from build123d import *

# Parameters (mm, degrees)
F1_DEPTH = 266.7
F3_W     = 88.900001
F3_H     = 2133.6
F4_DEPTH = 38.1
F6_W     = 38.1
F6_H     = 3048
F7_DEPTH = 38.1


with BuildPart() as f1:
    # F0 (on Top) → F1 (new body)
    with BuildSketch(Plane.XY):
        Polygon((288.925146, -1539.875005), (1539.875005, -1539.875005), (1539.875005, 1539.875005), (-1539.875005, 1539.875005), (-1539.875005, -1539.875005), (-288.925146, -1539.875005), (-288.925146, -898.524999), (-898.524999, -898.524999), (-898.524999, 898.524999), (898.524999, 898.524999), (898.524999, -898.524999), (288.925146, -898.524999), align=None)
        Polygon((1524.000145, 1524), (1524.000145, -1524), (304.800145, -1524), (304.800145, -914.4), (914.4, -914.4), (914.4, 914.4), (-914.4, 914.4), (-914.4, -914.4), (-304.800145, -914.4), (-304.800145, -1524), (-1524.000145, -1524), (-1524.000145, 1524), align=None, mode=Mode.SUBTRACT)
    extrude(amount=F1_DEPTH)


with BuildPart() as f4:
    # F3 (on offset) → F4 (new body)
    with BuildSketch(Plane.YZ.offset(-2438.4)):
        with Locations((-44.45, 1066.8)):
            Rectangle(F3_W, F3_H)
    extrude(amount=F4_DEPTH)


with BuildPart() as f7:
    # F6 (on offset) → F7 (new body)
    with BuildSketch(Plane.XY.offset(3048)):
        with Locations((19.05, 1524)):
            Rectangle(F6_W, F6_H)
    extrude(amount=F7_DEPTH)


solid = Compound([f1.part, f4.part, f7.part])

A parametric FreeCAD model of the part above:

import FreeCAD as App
import Part
import Sketcher

V = App.Vector
Q = App.Units.Quantity


def add_polygon(sketch, points):
    """Adds a closed chain of lines whose ends are joined by coincident constraints."""
    first, n = sketch.GeometryCount, len(points)
    for a, b in zip(points, points[1:] + points[:1]):
        sketch.addGeometry(Part.LineSegment(App.Vector(*a, 0), App.Vector(*b, 0)), False)
    for i in range(n):
        sketch.addConstraint(Sketcher.Constraint("Coincident", first + i, 2, first + (i + 1) % n, 1))

doc = App.newDocument("Part")
params = doc.addObject("Spreadsheet::Sheet", "Params")
for row, (alias, value) in enumerate([
    ("sketch1_width", "48 in"),
    ("sketch1_width2", "72 in"),
    ("sketch1_height", "120 in"),
    ("sketch1_width3", "70.7499999 in"),
    ("pad1_length", "10.5 in"),
    ("sketch2_height", "84 in"),
    ("sketch2_width", "3.5 in"),
    ("pad2_length", "1.5 in"),
    ("sketch3_height", "120 in"),
    ("sketch3_width", "1.5 in"),
    ("pad3_length", "1.5 in"),
], start=1):
    params.set(f"A{row}", alias)
    params.set(f"B{row}", "=" + value)
    params.setAlias(f"B{row}", alias)

body = doc.addObject("PartDesign::Body", "Body")

# Sketch on XY plane
sketch1 = doc.addObject("Sketcher::SketchObject", "Sketch")
body.addObject(sketch1)
sketch1.AttachmentSupport = (doc.XY_Plane, [""])
sketch1.MapMode = "FlatFace"
add_polygon(sketch1, [(289, -1540), (1540, -1540), (1540, 1540), (-1540, 1540), (-1540, -1540), (-289, -1540), (-289, -899), (-899, -899), (-899, 899), (899, 899), (899, -899), (289, -899)])  # lines 0-11
add_polygon(sketch1, [(-1524, 1524), (1524, 1524), (1524, -1524), (305, -1524), (305, -914), (914, -914), (914, 914), (-914, 914), (-914, -914), (-305, -914), (-305, -1524), (-1524, -1524)])  # lines 12-23
sketch1.addConstraint([
    Sketcher.Constraint("Horizontal", 0),
    Sketcher.Constraint("Vertical", 1),
    Sketcher.Constraint("Horizontal", 2),
    Sketcher.Constraint("Vertical", 3),
    Sketcher.Constraint("Horizontal", 4),
    Sketcher.Constraint("Vertical", 5),
    Sketcher.Constraint("Horizontal", 6),
    Sketcher.Constraint("Vertical", 7),
    Sketcher.Constraint("Horizontal", 8),
    Sketcher.Constraint("Vertical", 9),
    Sketcher.Constraint("Horizontal", 10),
    Sketcher.Constraint("Vertical", 11),
    Sketcher.Constraint("Horizontal", 12),
    Sketcher.Constraint("Vertical", 13),
    Sketcher.Constraint("Horizontal", 14),
    Sketcher.Constraint("Vertical", 15),
    Sketcher.Constraint("Horizontal", 16),
    Sketcher.Constraint("Vertical", 17),
    Sketcher.Constraint("Horizontal", 18),
    Sketcher.Constraint("Vertical", 19),
    Sketcher.Constraint("Horizontal", 20),
    Sketcher.Constraint("Vertical", 21),
    Sketcher.Constraint("Horizontal", 22),
    Sketcher.Constraint("Vertical", 23),
    Sketcher.Constraint("Symmetric", 0, 2, 2, 2, -1, 1),
    Sketcher.Constraint("Symmetric", 6, 2, 8, 2, -1, 1),
    Sketcher.Constraint("Symmetric", 16, 2, 18, 2, -1, 1),
    Sketcher.Constraint("Symmetric", 12, 2, 22, 2, -1, 1),
    Sketcher.Constraint("Symmetric", 5, 2, 10, 2, -2),
    Sketcher.Constraint("Symmetric", 15, 2, 20, 2, -2),
    Sketcher.Constraint("Horizontal", 0, 2, 3, 2),
    Sketcher.Constraint("Horizontal", 14, 2, 21, 2),
    Sketcher.Constraint("Equal", 10, 16),
    Sketcher.Constraint("Equal", 2, 1),
    Sketcher.Constraint("Equal", 8, 7),
    Sketcher.Constraint("Equal", 18, 17),
    Sketcher.Constraint("DistanceX", 14, 2, 14, 1, Q("48 in")),
    Sketcher.Constraint("DistanceX", 18, 2, 18, 1, Q("72 in")),
    Sketcher.Constraint("DistanceY", 13, 2, 13, 1, Q("120 in")),
    Sketcher.Constraint("DistanceY", 5, 2, 2, 2, Q("96.0000002 in")),
    Sketcher.Constraint("DistanceX", 8, 1, 8, 2, Q("70.7499999 in")),
    Sketcher.Constraint("DistanceX", 0, 1, 0, 2, 1250.949859),
])
sketch1.setExpression("Constraints[60]", "Params.sketch1_width")
sketch1.setExpression("Constraints[61]", "Params.sketch1_width2")
sketch1.setExpression("Constraints[62]", "Params.sketch1_height")
sketch1.setExpression("Constraints[64]", "Params.sketch1_width3")
pad1 = doc.addObject("PartDesign::Pad", "Pad")
body.addObject(pad1)
pad1.Profile = sketch1
pad1.setExpression("Length", "Params.pad1_length")
body2 = doc.addObject("PartDesign::Body", "Body001")

# Sketch on YZ plane
sketch2 = doc.addObject("Sketcher::SketchObject", "Sketch001")
body2.addObject(sketch2)
sketch2.AttachmentSupport = (doc.getObject("YZ_Plane001"), [""])
sketch2.MapMode = "FlatFace"
sketch2.AttachmentOffset = App.Placement(V(0, 0, -96 * 25.4), App.Rotation())
add_polygon(sketch2, [(-89, 2134), (-89, 0), (0, 0), (0, 2134)])  # lines 0-3
sketch2.addConstraint([
    Sketcher.Constraint("Vertical", 0),
    Sketcher.Constraint("Horizontal", 1),
    Sketcher.Constraint("Vertical", 2),
    Sketcher.Constraint("Horizontal", 3),
    Sketcher.Constraint("Coincident", 1, 2, -1, 1),
    Sketcher.Constraint("DistanceY", 0, 2, 0, 1, Q("84 in")),
    Sketcher.Constraint("DistanceX", 1, 1, 1, 2, Q("3.5 in")),
])
sketch2.setExpression("Constraints[9]", "Params.sketch2_height")
sketch2.setExpression("Constraints[10]", "Params.sketch2_width")
pad2 = doc.addObject("PartDesign::Pad", "Pad001")
body2.addObject(pad2)
pad2.Profile = sketch2
pad2.setExpression("Length", "Params.pad2_length")
body3 = doc.addObject("PartDesign::Body", "Body002")

# Sketch on XY plane
sketch3 = doc.addObject("Sketcher::SketchObject", "Sketch002")
body3.addObject(sketch3)
sketch3.AttachmentSupport = (doc.getObject("XY_Plane002"), [""])
sketch3.MapMode = "FlatFace"
sketch3.AttachmentOffset = App.Placement(V(0, 0, 120 * 25.4), App.Rotation())
add_polygon(sketch3, [(0, 3048), (0, 0), (38, 0), (38, 3048)])  # lines 0-3
sketch3.addConstraint([
    Sketcher.Constraint("Vertical", 0),
    Sketcher.Constraint("Horizontal", 1),
    Sketcher.Constraint("Vertical", 2),
    Sketcher.Constraint("Horizontal", 3),
    Sketcher.Constraint("Coincident", 0, 2, -1, 1),
    Sketcher.Constraint("DistanceY", 0, 2, 0, 1, Q("120 in")),
    Sketcher.Constraint("DistanceX", 1, 1, 1, 2, Q("1.5 in")),
])
sketch3.setExpression("Constraints[9]", "Params.sketch3_height")
sketch3.setExpression("Constraints[10]", "Params.sketch3_width")
pad3 = doc.addObject("PartDesign::Pad", "Pad002")
body3.addObject(pad3)
pad3.Profile = sketch3
pad3.setExpression("Length", "Params.pad3_length")

doc.recompute()
